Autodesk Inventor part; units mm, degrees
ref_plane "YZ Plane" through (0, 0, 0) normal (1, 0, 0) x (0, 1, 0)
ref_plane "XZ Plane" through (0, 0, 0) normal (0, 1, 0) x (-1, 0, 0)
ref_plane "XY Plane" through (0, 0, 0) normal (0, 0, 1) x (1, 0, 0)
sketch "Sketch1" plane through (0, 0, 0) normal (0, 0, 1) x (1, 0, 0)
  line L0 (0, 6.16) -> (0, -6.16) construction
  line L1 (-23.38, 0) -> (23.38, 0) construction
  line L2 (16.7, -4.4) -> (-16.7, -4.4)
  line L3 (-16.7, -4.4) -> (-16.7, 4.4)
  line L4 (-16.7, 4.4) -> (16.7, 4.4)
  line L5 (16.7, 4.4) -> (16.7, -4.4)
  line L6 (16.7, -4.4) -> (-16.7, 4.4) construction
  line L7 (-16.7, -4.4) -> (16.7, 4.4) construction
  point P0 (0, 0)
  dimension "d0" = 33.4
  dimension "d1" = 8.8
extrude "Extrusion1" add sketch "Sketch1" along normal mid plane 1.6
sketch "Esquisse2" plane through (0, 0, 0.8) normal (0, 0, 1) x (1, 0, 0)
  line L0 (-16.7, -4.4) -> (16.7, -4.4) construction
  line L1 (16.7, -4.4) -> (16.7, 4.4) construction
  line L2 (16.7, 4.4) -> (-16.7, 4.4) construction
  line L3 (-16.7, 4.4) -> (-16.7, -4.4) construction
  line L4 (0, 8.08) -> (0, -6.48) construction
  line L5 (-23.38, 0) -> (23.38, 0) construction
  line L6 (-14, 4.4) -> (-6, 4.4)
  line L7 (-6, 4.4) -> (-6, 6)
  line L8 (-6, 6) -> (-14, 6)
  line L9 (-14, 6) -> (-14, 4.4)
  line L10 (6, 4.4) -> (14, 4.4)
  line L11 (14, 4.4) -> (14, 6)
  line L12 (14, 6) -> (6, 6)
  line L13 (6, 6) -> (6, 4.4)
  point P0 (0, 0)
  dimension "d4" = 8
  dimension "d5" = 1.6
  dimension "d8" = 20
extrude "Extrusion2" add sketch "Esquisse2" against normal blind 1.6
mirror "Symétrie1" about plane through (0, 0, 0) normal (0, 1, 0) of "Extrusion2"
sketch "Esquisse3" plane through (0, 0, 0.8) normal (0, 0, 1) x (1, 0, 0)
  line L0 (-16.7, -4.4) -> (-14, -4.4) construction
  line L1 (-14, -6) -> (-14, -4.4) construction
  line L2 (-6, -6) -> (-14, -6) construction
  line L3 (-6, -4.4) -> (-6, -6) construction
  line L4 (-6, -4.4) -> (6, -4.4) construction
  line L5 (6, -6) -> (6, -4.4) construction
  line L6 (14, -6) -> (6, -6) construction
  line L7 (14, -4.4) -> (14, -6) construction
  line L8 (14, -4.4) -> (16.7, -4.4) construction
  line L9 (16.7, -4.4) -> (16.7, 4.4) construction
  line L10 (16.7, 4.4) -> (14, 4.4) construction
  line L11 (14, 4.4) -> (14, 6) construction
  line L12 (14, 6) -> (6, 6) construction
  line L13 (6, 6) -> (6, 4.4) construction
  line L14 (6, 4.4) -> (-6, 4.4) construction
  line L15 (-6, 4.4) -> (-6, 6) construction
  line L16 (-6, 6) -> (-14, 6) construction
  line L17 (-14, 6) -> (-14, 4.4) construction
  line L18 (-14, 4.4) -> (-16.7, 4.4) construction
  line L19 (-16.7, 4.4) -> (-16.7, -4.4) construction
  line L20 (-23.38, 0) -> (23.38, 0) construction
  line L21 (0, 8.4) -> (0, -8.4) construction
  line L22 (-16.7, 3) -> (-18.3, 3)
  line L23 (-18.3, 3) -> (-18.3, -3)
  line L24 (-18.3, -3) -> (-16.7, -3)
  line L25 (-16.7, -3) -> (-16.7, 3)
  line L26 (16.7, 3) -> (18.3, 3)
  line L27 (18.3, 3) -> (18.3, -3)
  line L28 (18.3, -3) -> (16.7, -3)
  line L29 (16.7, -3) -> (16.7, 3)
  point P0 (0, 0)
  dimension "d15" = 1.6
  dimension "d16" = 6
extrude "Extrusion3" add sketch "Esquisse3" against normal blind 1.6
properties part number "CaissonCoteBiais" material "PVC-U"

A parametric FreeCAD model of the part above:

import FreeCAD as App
import Part
import Sketcher
Q = App.Units.Quantity


def add_polygon(sketch, points):
    """Adds a closed chain of lines whose ends are joined by coincident constraints."""
    first, n = sketch.GeometryCount, len(points)
    for a, b in zip(points, points[1:] + points[:1]):
        sketch.addGeometry(Part.LineSegment(App.Vector(*a, 0), App.Vector(*b, 0)), False)
    for i in range(n):
        sketch.addConstraint(Sketcher.Constraint("Coincident", first + i, 2, first + (i + 1) % n, 1))

doc = App.newDocument("Part")
body = doc.addObject("PartDesign::Body", "Body")

# Sketch on XY plane
sketch1 = body.newObject("Sketcher::SketchObject", "Sketch")
sketch1.AttachmentSupport = (doc.getObject("XY_Plane"), [""])
sketch1.MapMode = "FlatFace"
add_polygon(sketch1, [(-17, -4), (17, -4), (17, 4), (-17, 4)])  # lines 0-3
sketch1.addConstraint(Sketcher.Constraint("Horizontal", 0))
sketch1.addConstraint(Sketcher.Constraint("Vertical", 1))
sketch1.addConstraint(Sketcher.Constraint("Horizontal", 2))
sketch1.addConstraint(Sketcher.Constraint("Vertical", 3))
sketch1.addConstraint(Sketcher.Constraint("Symmetric", 0, 2, 2, 2, -1, 1))
sketch1.addConstraint(Sketcher.Constraint("DistanceX", 0, 1, 0, 2, Q("33.4 mm")))
sketch1.addConstraint(Sketcher.Constraint("DistanceY", 1, 1, 1, 2, Q("8.8 mm")))
pad1 = body.newObject("PartDesign::Pad", "Pad")
pad1.Profile = sketch1
pad1.Length = 1.6
pad1.Midplane = True

# Sketch on XY plane
sketch2 = body.newObject("Sketcher::SketchObject", "Sketch001")
sketch2.AttachmentSupport = (doc.getObject("XY_Plane"), [""])
sketch2.MapMode = "FlatFace"
sketch2.AttachmentOffset = App.Placement(App.Vector(0, 0, 0.8), App.Rotation())
add_polygon(sketch2, [(-14, 6), (-14, 4.4), (-6, 4.4), (-6, 6)])  # lines 0-3
add_polygon(sketch2, [(6, 6), (6, 4.4), (14, 4.4), (14, 6)])  # lines 4-7
sketch2.addConstraint(Sketcher.Constraint("Vertical", 0))
sketch2.addConstraint(Sketcher.Constraint("Horizontal", 1))
sketch2.addConstraint(Sketcher.Constraint("Vertical", 2))
sketch2.addConstraint(Sketcher.Constraint("Horizontal", 3))
sketch2.addConstraint(Sketcher.Constraint("Vertical", 4))
sketch2.addConstraint(Sketcher.Constraint("Horizontal", 5))
sketch2.addConstraint(Sketcher.Constraint("Vertical", 6))
sketch2.addConstraint(Sketcher.Constraint("Horizontal", 7))
sketch2.addConstraint(Sketcher.Constraint("Symmetric", 1, 2, 4, 2, -2))
sketch2.addConstraint(Sketcher.Constraint("Symmetric", 3, 2, 6, 2, -2))
sketch2.addConstraint(Sketcher.Constraint("DistanceX", 1, 1, 1, 2, Q("8 mm")))
sketch2.addConstraint(Sketcher.Constraint("DistanceY", 0, 2, 0, 1, Q("1.6 mm")))
sketch2.addConstraint(Sketcher.Constraint("DistanceX", 0, 2, 4, 2, Q("20 mm")))
sketch2.addConstraint(Sketcher.Constraint("DistanceY", -1, 1, 2, 2, Q("6 mm")))
pad2 = body.newObject("PartDesign::Pad", "Pad001")
pad2.Profile = sketch2
pad2.Length = 1.6
pad2.Reversed = True
doc.recompute()

mirrored = body.newObject("PartDesign::Mirrored", "Mirrored")
mirrored.Originals = [pad2]
mirrored.MirrorPlane = (doc.getObject("XZ_Plane"), [""])
body.Tip = mirrored

# Sketch on XY plane
sketch3 = body.newObject("Sketcher::SketchObject", "Sketch002")
sketch3.AttachmentSupport = (doc.getObject("XY_Plane"), [""])
sketch3.MapMode = "FlatFace"
sketch3.AttachmentOffset = App.Placement(App.Vector(0, 0, 0.8), App.Rotation())
add_polygon(sketch3, [(-16.7, -3), (-16.7, 3), (-18.3, 3), (-18.3, -3)])  # lines 0-3
add_polygon(sketch3, [(18.3, 3), (16.7, 3), (16.7, -3), (18.3, -3)])  # lines 4-7
sketch3.addConstraint(Sketcher.Constraint("Vertical", 0))
sketch3.addConstraint(Sketcher.Constraint("Horizontal", 1))
sketch3.addConstraint(Sketcher.Constraint("Vertical", 2))
sketch3.addConstraint(Sketcher.Constraint("Horizontal", 3))
sketch3.addConstraint(Sketcher.Constraint("Horizontal", 4))
sketch3.addConstraint(Sketcher.Constraint("Vertical", 5))
sketch3.addConstraint(Sketcher.Constraint("Horizontal", 6))
sketch3.addConstraint(Sketcher.Constraint("Vertical", 7))
sketch3.addConstraint(Sketcher.Constraint("Symmetric", 3, 2, 4, 2, -1, 1))
sketch3.addConstraint(Sketcher.Constraint("Symmetric", 1, 2, 6, 2, -1, 1))
sketch3.addConstraint(Sketcher.Constraint("Horizontal", 1, 2, 4, 2))
sketch3.addConstraint(Sketcher.Constraint("DistanceY", 0, 1, 0, 2, Q("6 mm")))
sketch3.addConstraint(Sketcher.Constraint("DistanceX", 1, 2, 1, 1, Q("1.6 mm")))
sketch3.addConstraint(Sketcher.Constraint("DistanceX", 1, 2, 4, 2, Q("35 mm")))
pad3 = body.newObject("PartDesign::Pad", "Pad002")
pad3.Profile = sketch3
pad3.Length = 1.6
pad3.Reversed = True

doc.recompute()
